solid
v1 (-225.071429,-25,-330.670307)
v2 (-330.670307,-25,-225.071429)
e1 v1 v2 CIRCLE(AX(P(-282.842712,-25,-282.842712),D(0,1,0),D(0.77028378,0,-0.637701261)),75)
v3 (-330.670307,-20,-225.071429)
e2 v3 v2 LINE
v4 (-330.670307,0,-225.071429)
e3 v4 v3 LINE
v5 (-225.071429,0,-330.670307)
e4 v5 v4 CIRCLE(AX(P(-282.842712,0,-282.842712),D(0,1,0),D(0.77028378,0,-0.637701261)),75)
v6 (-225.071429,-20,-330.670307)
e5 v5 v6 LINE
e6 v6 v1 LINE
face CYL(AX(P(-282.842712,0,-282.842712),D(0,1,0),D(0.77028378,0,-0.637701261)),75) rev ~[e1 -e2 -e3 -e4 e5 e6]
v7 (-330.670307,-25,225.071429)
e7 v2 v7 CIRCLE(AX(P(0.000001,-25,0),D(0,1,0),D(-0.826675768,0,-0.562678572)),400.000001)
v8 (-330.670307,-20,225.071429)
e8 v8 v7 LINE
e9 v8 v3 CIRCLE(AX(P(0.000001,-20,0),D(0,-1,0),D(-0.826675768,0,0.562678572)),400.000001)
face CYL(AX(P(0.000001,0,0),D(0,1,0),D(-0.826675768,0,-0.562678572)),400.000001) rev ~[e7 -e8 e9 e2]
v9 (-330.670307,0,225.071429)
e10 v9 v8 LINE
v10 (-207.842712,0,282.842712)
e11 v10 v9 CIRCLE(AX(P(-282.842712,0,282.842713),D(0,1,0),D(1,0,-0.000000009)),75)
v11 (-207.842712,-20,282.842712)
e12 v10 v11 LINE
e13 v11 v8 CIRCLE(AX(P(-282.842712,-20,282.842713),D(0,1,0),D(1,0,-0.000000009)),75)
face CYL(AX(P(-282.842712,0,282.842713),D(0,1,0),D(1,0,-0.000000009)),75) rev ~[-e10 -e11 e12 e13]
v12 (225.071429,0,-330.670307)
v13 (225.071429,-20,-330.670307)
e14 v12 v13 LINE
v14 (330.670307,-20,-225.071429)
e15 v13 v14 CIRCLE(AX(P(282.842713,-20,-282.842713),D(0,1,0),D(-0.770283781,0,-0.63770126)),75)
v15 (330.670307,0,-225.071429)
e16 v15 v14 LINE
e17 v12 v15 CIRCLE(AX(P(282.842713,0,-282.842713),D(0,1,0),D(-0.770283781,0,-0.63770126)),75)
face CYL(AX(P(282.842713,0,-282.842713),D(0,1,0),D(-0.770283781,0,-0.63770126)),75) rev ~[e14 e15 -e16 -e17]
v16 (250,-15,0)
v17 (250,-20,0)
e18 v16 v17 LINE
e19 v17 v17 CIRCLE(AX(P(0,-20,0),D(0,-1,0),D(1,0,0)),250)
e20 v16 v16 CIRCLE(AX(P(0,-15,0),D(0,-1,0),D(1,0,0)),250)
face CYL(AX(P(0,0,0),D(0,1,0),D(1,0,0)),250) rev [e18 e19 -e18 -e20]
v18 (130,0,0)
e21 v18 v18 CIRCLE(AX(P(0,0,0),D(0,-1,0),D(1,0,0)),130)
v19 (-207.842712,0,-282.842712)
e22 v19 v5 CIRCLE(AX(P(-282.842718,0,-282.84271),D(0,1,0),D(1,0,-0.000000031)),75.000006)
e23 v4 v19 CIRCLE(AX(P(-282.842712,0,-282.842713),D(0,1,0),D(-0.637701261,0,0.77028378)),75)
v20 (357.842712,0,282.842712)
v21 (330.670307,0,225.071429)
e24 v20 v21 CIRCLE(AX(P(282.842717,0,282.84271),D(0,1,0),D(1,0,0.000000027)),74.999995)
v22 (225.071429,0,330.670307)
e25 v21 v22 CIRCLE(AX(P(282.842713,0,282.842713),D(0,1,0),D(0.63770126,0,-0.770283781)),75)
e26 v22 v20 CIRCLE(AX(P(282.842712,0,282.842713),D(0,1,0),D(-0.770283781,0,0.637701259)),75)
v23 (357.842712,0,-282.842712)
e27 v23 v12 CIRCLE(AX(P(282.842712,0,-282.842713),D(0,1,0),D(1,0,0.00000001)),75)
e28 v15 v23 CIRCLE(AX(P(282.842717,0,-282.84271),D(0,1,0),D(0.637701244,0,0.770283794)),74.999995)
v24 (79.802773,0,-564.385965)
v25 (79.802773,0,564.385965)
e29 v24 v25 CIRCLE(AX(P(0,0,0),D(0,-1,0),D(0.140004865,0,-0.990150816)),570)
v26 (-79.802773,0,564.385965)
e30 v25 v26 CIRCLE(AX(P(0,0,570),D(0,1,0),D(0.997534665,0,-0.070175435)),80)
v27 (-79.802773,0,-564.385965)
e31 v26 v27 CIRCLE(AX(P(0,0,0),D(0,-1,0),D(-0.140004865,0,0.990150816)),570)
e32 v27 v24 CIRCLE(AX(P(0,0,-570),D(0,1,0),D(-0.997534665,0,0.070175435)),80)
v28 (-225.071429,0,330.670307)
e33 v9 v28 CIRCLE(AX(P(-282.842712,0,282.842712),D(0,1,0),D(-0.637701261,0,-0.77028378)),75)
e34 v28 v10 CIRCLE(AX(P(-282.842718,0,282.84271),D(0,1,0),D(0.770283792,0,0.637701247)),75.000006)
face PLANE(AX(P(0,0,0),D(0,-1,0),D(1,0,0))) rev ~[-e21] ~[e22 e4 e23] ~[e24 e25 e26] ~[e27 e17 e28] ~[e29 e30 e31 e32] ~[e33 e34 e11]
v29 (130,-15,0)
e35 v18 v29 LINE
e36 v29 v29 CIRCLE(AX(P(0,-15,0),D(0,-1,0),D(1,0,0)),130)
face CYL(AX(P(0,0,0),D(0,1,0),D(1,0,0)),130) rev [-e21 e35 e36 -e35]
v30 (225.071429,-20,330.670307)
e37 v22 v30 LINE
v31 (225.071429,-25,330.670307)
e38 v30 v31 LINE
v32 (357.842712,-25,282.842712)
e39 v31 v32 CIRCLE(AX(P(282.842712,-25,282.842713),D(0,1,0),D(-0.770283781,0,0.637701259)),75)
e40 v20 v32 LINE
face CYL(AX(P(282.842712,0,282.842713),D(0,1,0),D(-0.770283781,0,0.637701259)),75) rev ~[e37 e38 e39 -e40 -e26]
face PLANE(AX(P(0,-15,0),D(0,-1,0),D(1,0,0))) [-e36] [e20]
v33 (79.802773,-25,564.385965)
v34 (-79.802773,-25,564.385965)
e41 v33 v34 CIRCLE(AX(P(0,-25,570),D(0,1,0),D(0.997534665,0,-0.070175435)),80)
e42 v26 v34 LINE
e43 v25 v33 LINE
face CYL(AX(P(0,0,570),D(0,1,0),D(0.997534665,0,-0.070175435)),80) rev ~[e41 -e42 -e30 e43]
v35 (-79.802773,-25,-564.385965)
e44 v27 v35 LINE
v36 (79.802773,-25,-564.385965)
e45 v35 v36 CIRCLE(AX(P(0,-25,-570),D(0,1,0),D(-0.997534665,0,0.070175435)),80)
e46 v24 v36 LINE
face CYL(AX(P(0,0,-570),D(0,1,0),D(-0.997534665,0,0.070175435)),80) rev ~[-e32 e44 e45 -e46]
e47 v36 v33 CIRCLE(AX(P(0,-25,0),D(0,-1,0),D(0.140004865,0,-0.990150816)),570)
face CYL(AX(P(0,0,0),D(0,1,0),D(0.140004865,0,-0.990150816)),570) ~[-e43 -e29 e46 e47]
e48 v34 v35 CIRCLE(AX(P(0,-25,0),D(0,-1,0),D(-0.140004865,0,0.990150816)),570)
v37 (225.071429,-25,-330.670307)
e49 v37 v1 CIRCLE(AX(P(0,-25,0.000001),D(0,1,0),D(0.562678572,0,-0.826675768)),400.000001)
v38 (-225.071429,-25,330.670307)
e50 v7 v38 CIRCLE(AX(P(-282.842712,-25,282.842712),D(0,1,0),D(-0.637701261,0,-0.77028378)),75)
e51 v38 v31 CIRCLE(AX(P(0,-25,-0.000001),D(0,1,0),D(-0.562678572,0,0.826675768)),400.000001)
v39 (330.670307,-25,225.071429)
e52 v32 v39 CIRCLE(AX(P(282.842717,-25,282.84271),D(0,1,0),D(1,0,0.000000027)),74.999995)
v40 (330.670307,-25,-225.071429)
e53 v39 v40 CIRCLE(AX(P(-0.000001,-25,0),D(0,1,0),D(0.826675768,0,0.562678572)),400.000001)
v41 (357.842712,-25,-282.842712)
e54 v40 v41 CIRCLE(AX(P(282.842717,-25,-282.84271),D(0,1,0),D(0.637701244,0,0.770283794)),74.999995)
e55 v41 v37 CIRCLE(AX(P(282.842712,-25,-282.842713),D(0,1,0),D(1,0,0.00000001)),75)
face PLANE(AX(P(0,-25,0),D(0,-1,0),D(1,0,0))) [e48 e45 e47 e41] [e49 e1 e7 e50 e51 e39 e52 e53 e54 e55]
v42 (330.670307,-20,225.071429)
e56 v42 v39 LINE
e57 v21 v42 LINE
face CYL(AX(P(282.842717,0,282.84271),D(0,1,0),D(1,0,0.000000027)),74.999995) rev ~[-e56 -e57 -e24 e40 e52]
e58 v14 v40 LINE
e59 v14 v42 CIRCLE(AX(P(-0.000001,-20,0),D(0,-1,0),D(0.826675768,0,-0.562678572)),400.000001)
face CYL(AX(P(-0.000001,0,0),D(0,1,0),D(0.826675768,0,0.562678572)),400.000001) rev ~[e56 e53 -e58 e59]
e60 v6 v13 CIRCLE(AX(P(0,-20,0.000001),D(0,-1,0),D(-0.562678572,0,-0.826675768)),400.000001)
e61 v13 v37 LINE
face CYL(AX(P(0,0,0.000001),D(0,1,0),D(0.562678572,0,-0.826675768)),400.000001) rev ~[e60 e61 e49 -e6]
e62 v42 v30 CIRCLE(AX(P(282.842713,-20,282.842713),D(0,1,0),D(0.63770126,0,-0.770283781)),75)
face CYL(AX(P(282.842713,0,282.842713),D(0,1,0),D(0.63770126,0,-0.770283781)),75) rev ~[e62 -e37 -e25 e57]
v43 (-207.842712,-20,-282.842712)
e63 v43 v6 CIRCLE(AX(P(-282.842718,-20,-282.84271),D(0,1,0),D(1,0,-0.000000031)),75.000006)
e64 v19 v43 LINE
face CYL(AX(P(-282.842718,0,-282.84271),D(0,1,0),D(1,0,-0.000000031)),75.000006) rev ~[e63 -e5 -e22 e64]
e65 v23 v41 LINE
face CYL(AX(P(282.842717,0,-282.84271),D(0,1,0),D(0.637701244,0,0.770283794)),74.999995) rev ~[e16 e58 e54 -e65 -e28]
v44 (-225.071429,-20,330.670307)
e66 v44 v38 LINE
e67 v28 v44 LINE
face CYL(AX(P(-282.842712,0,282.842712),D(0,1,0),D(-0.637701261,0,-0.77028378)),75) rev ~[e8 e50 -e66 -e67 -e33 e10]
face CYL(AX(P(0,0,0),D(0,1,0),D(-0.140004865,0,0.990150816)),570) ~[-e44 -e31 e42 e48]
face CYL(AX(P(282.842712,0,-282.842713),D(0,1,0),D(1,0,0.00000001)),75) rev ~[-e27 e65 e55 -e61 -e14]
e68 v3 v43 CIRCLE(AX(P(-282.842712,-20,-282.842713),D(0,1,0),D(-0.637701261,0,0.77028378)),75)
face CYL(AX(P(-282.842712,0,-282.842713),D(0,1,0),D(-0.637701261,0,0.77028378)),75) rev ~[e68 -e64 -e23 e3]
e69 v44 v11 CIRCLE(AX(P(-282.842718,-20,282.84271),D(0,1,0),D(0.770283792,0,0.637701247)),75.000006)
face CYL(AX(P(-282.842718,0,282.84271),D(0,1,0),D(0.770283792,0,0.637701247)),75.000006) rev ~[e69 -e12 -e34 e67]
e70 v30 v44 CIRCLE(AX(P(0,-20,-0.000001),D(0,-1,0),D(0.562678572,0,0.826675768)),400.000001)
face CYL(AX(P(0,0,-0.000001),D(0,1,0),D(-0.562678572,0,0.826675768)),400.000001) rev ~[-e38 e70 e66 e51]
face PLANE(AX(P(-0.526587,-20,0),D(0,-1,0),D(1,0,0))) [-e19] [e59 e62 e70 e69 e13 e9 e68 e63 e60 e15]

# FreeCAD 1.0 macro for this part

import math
import FreeCAD as App
import Part
import Sketcher

V = App.Vector

doc = App.newDocument("Part")
body = doc.addObject("PartDesign::Body", "Body")

# Sketch on XZ plane
sketch1 = doc.addObject("Sketcher::SketchObject", "Sketch")
body.addObject(sketch1)
sketch1.AttachmentSupport = (doc.XZ_Plane, [""])
sketch1.MapMode = "FlatFace"
sketch1.addGeometry([
    Part.ArcOfCircle(Part.Circle(V(0, 570, 0), V(0, 0, 1), 80), math.radians(-176), math.radians(-4)),  # 0
    Part.ArcOfCircle(Part.Circle(V(0, 0, 0), V(0, 0, 1), 570), math.radians(98), math.radians(262)),  # 1
    Part.ArcOfCircle(Part.Circle(V(0, -570, 0), V(0, 0, 1), 80), math.radians(4), math.radians(176)),  # 2
    Part.ArcOfCircle(Part.Circle(V(0, 0, 0), V(0, 0, 1), 570), math.radians(-82), math.radians(82)),  # 3
    Part.ArcOfCircle(Part.Circle(V(0, 0, 0), V(0, 0, 1), 400), math.radians(146), math.radians(214)),  # 4
    Part.ArcOfCircle(Part.Circle(V(-283, 283, 0), V(0, 0, 1), 75), math.radians(40), math.radians(230)),  # 5
    Part.ArcOfCircle(Part.Circle(V(0, 0, 0), V(0, 0, 1), 400), math.radians(56), math.radians(124)),  # 6
    Part.ArcOfCircle(Part.Circle(V(283, 283, 0), V(0, 0, 1), 75), math.radians(0), math.radians(140)),  # 7
    Part.ArcOfCircle(Part.Circle(V(283, 283, 0), V(0, 0, 1), 75), math.radians(-50), math.radians(0)),  # 8
    Part.ArcOfCircle(Part.Circle(V(0, 0, 0), V(0, 0, 1), 400), math.radians(-34), math.radians(34)),  # 9
    Part.ArcOfCircle(Part.Circle(V(283, -283, 0), V(0, 0, 1), 75), math.radians(0), math.radians(50)),  # 10
    Part.ArcOfCircle(Part.Circle(V(283, -283, 0), V(0, 0, 1), 75), math.radians(-140), math.radians(0)),  # 11
    Part.ArcOfCircle(Part.Circle(V(0, 0, 0), V(0, 0, 1), 400), math.radians(-124), math.radians(-56)),  # 12
    Part.ArcOfCircle(Part.Circle(V(-283, -283, 0), V(0, 0, 1), 75), math.radians(130), math.radians(320)),  # 13
], False)
sketch1.addConstraint([
    Sketcher.Constraint("Coincident", 0, 1, 1, 1),
    Sketcher.Constraint("Coincident", 1, 2, 2, 2),
    Sketcher.Constraint("Coincident", 2, 1, 3, 1),
    Sketcher.Constraint("Coincident", 3, 2, 0, 2),
    Sketcher.Constraint("Coincident", 4, 1, 5, 2),
    Sketcher.Constraint("Coincident", 5, 1, 6, 2),
    Sketcher.Constraint("Coincident", 6, 1, 7, 2),
    Sketcher.Constraint("Tangent", 7, 1, 8, 2),
    Sketcher.Constraint("Coincident", 8, 1, 9, 2),
    Sketcher.Constraint("Coincident", 9, 1, 10, 2),
    Sketcher.Constraint("Tangent", 10, 1, 11, 2),
    Sketcher.Constraint("Coincident", 11, 1, 12, 2),
    Sketcher.Constraint("Coincident", 12, 1, 13, 2),
    Sketcher.Constraint("Coincident", 13, 1, 4, 2),
    Sketcher.Constraint("Coincident", 1, 3, -1, 1),
    Sketcher.Constraint("Coincident", 3, 3, -1, 1),
    Sketcher.Constraint("Coincident", 4, 3, -1, 1),
    Sketcher.Constraint("Coincident", 6, 3, -1, 1),
    Sketcher.Constraint("Coincident", 9, 3, -1, 1),
    Sketcher.Constraint("Coincident", 12, 3, -1, 1),
    Sketcher.Constraint("Equal", 0, 2),
    Sketcher.Constraint("Equal", 1, 3),
    Sketcher.Constraint("Equal", 4, 6),
    Sketcher.Constraint("Equal", 5, 7),
    Sketcher.Constraint("Equal", 6, 9),
    Sketcher.Constraint("Equal", 8, 10),
    Sketcher.Constraint("Equal", 7, 11),
    Sketcher.Constraint("Equal", 9, 12),
    Sketcher.Constraint("Equal", 11, 13),
    Sketcher.Constraint("Symmetric", 0, 3, 2, 3, -1, 1),
    Sketcher.Constraint("Symmetric", 5, 3, 10, 3, -1, 1),
    Sketcher.Constraint("Symmetric", 7, 3, 13, 3, -1, 1),
    Sketcher.Constraint("Symmetric", 5, 3, 7, 3, -2),
    Sketcher.Constraint("Symmetric", 7, 1, 10, 1, -1),
    Sketcher.Constraint("PointOnObject", 0, 3, -2),
    Sketcher.Constraint("Horizontal", 5, 3, 7, 1),
    Sketcher.Constraint("Radius", 0, 80.0),
    Sketcher.Constraint("Radius", 1, 570.0),
    Sketcher.Constraint("Radius", 4, 400.000001),
    Sketcher.Constraint("Radius", 5, 75.0),
    Sketcher.Constraint("DistanceY", -1, 1, 0, 3, 570.0),
    Sketcher.Constraint("DistanceY", -1, 1, 8, 3, 282.84271),
    Sketcher.Constraint("DistanceX", 5, 1, -1, 1, 225.071429),
])
pad1 = doc.addObject("PartDesign::Pad", "Pad")
body.addObject(pad1)
pad1.Profile = sketch1
pad1.Length = 25

# Sketch on XZ plane
sketch2 = doc.addObject("Sketcher::SketchObject", "Sketch001")
body.addObject(sketch2)
sketch2.AttachmentSupport = (doc.XZ_Plane, [""])
sketch2.MapMode = "FlatFace"
sketch2.addGeometry([
    Part.ArcOfCircle(Part.Circle(V(-283, 283, 0), V(0, 0, 1), 75), math.radians(0), math.radians(40)),  # 0
    Part.ArcOfCircle(Part.Circle(V(-283, 283, 0), V(0, 0, 1), 75), math.radians(-130), math.radians(0)),  # 1
    Part.ArcOfCircle(Part.Circle(V(0, 0, 0), V(0, 0, 1), 400), math.radians(146), math.radians(214)),  # 2
    Part.ArcOfCircle(Part.Circle(V(-283, -283, 0), V(0, 0, 1), 75), math.radians(0), math.radians(130)),  # 3
    Part.ArcOfCircle(Part.Circle(V(-283, -283, 0), V(0, 0, 1), 75), math.radians(-40), math.radians(0)),  # 4
    Part.ArcOfCircle(Part.Circle(V(0, 0, 0), V(0, 0, 1), 400), math.radians(-124), math.radians(-56)),  # 5
    Part.ArcOfCircle(Part.Circle(V(283, -283, 0), V(0, 0, 1), 75), math.radians(50), math.radians(220)),  # 6
    Part.ArcOfCircle(Part.Circle(V(0, 0, 0), V(0, 0, 1), 400), math.radians(-34), math.radians(34)),  # 7
    Part.ArcOfCircle(Part.Circle(V(283, 283, 0), V(0, 0, 1), 75), math.radians(140), math.radians(310)),  # 8
    Part.ArcOfCircle(Part.Circle(V(0, 0, 0), V(0, 0, 1), 400), math.radians(56), math.radians(124)),  # 9
    Part.Circle(V(0, 0, 0), V(0, 0, 1), 250),  # 10
], False)
sketch2.addConstraint([
    Sketcher.Constraint("Tangent", 0, 1, 1, 2),
    Sketcher.Constraint("Coincident", 1, 1, 2, 1),
    Sketcher.Constraint("Coincident", 2, 2, 3, 2),
    Sketcher.Constraint("Tangent", 3, 1, 4, 2),
    Sketcher.Constraint("Coincident", 4, 1, 5, 1),
    Sketcher.Constraint("Coincident", 5, 2, 6, 2),
    Sketcher.Constraint("Coincident", 6, 1, 7, 1),
    Sketcher.Constraint("Coincident", 7, 2, 8, 2),
    Sketcher.Constraint("Coincident", 8, 1, 9, 1),
    Sketcher.Constraint("Coincident", 9, 2, 0, 2),
    Sketcher.Constraint("Coincident", 2, 3, -1, 1),
    Sketcher.Constraint("Coincident", 5, 3, -1, 1),
    Sketcher.Constraint("Coincident", 7, 3, -1, 1),
    Sketcher.Constraint("Coincident", 9, 3, -1, 1),
    Sketcher.Constraint("Coincident", 10, 3, -1, 1),
    Sketcher.Constraint("Equal", 1, 3),
    Sketcher.Constraint("Equal", 0, 4),
    Sketcher.Constraint("Equal", 2, 5),
    Sketcher.Constraint("Equal", 3, 6),
    Sketcher.Constraint("Equal", 5, 7),
    Sketcher.Constraint("Equal", 6, 8),
    Sketcher.Constraint("Equal", 7, 9),
    Sketcher.Constraint("Symmetric", 0, 3, 6, 3, -1, 1),
    Sketcher.Constraint("Symmetric", 3, 3, 8, 3, -1, 1),
    Sketcher.Constraint("Symmetric", 3, 3, 6, 3, -2),
    Sketcher.Constraint("Symmetric", 0, 1, 3, 1, -1),
    Sketcher.Constraint("Horizontal", 8, 3, 0, 1),
    Sketcher.Constraint("Diameter", 10, 500.0),
    Sketcher.Constraint("Radius", 1, 75.0),
    Sketcher.Constraint("Radius", 2, 400.000001),
    Sketcher.Constraint("DistanceX", 0, 3, -1, 1, 282.842718),
    Sketcher.Constraint("DistanceY", -1, 1, 0, 3, 282.84271),
])
pad2 = doc.addObject("PartDesign::Pad", "Pad001")
body.addObject(pad2)
pad2.Profile = sketch2
pad2.Length = 20

# Sketch on XZ plane
sketch3 = doc.addObject("Sketcher::SketchObject", "Sketch002")
body.addObject(sketch3)
sketch3.AttachmentSupport = (doc.XZ_Plane, [""])
sketch3.MapMode = "FlatFace"
sketch3.addGeometry([
    Part.Circle(V(0, 0, 0), V(0, 0, 1), 250),
    Part.Circle(V(0, 0, 0), V(0, 0, 1), 130),
], False)
sketch3.addConstraint([
    Sketcher.Constraint("Coincident", 0, 3, -1, 1),
    Sketcher.Constraint("Coincident", 1, 3, -1, 1),
    Sketcher.Constraint("Diameter", 0, 500.0),
    Sketcher.Constraint("Diameter", 1, 260.0),
])
pad3 = doc.addObject("PartDesign::Pad", "Pad002")
body.addObject(pad3)
pad3.Profile = sketch3
pad3.Length = 15

doc.recompute()
